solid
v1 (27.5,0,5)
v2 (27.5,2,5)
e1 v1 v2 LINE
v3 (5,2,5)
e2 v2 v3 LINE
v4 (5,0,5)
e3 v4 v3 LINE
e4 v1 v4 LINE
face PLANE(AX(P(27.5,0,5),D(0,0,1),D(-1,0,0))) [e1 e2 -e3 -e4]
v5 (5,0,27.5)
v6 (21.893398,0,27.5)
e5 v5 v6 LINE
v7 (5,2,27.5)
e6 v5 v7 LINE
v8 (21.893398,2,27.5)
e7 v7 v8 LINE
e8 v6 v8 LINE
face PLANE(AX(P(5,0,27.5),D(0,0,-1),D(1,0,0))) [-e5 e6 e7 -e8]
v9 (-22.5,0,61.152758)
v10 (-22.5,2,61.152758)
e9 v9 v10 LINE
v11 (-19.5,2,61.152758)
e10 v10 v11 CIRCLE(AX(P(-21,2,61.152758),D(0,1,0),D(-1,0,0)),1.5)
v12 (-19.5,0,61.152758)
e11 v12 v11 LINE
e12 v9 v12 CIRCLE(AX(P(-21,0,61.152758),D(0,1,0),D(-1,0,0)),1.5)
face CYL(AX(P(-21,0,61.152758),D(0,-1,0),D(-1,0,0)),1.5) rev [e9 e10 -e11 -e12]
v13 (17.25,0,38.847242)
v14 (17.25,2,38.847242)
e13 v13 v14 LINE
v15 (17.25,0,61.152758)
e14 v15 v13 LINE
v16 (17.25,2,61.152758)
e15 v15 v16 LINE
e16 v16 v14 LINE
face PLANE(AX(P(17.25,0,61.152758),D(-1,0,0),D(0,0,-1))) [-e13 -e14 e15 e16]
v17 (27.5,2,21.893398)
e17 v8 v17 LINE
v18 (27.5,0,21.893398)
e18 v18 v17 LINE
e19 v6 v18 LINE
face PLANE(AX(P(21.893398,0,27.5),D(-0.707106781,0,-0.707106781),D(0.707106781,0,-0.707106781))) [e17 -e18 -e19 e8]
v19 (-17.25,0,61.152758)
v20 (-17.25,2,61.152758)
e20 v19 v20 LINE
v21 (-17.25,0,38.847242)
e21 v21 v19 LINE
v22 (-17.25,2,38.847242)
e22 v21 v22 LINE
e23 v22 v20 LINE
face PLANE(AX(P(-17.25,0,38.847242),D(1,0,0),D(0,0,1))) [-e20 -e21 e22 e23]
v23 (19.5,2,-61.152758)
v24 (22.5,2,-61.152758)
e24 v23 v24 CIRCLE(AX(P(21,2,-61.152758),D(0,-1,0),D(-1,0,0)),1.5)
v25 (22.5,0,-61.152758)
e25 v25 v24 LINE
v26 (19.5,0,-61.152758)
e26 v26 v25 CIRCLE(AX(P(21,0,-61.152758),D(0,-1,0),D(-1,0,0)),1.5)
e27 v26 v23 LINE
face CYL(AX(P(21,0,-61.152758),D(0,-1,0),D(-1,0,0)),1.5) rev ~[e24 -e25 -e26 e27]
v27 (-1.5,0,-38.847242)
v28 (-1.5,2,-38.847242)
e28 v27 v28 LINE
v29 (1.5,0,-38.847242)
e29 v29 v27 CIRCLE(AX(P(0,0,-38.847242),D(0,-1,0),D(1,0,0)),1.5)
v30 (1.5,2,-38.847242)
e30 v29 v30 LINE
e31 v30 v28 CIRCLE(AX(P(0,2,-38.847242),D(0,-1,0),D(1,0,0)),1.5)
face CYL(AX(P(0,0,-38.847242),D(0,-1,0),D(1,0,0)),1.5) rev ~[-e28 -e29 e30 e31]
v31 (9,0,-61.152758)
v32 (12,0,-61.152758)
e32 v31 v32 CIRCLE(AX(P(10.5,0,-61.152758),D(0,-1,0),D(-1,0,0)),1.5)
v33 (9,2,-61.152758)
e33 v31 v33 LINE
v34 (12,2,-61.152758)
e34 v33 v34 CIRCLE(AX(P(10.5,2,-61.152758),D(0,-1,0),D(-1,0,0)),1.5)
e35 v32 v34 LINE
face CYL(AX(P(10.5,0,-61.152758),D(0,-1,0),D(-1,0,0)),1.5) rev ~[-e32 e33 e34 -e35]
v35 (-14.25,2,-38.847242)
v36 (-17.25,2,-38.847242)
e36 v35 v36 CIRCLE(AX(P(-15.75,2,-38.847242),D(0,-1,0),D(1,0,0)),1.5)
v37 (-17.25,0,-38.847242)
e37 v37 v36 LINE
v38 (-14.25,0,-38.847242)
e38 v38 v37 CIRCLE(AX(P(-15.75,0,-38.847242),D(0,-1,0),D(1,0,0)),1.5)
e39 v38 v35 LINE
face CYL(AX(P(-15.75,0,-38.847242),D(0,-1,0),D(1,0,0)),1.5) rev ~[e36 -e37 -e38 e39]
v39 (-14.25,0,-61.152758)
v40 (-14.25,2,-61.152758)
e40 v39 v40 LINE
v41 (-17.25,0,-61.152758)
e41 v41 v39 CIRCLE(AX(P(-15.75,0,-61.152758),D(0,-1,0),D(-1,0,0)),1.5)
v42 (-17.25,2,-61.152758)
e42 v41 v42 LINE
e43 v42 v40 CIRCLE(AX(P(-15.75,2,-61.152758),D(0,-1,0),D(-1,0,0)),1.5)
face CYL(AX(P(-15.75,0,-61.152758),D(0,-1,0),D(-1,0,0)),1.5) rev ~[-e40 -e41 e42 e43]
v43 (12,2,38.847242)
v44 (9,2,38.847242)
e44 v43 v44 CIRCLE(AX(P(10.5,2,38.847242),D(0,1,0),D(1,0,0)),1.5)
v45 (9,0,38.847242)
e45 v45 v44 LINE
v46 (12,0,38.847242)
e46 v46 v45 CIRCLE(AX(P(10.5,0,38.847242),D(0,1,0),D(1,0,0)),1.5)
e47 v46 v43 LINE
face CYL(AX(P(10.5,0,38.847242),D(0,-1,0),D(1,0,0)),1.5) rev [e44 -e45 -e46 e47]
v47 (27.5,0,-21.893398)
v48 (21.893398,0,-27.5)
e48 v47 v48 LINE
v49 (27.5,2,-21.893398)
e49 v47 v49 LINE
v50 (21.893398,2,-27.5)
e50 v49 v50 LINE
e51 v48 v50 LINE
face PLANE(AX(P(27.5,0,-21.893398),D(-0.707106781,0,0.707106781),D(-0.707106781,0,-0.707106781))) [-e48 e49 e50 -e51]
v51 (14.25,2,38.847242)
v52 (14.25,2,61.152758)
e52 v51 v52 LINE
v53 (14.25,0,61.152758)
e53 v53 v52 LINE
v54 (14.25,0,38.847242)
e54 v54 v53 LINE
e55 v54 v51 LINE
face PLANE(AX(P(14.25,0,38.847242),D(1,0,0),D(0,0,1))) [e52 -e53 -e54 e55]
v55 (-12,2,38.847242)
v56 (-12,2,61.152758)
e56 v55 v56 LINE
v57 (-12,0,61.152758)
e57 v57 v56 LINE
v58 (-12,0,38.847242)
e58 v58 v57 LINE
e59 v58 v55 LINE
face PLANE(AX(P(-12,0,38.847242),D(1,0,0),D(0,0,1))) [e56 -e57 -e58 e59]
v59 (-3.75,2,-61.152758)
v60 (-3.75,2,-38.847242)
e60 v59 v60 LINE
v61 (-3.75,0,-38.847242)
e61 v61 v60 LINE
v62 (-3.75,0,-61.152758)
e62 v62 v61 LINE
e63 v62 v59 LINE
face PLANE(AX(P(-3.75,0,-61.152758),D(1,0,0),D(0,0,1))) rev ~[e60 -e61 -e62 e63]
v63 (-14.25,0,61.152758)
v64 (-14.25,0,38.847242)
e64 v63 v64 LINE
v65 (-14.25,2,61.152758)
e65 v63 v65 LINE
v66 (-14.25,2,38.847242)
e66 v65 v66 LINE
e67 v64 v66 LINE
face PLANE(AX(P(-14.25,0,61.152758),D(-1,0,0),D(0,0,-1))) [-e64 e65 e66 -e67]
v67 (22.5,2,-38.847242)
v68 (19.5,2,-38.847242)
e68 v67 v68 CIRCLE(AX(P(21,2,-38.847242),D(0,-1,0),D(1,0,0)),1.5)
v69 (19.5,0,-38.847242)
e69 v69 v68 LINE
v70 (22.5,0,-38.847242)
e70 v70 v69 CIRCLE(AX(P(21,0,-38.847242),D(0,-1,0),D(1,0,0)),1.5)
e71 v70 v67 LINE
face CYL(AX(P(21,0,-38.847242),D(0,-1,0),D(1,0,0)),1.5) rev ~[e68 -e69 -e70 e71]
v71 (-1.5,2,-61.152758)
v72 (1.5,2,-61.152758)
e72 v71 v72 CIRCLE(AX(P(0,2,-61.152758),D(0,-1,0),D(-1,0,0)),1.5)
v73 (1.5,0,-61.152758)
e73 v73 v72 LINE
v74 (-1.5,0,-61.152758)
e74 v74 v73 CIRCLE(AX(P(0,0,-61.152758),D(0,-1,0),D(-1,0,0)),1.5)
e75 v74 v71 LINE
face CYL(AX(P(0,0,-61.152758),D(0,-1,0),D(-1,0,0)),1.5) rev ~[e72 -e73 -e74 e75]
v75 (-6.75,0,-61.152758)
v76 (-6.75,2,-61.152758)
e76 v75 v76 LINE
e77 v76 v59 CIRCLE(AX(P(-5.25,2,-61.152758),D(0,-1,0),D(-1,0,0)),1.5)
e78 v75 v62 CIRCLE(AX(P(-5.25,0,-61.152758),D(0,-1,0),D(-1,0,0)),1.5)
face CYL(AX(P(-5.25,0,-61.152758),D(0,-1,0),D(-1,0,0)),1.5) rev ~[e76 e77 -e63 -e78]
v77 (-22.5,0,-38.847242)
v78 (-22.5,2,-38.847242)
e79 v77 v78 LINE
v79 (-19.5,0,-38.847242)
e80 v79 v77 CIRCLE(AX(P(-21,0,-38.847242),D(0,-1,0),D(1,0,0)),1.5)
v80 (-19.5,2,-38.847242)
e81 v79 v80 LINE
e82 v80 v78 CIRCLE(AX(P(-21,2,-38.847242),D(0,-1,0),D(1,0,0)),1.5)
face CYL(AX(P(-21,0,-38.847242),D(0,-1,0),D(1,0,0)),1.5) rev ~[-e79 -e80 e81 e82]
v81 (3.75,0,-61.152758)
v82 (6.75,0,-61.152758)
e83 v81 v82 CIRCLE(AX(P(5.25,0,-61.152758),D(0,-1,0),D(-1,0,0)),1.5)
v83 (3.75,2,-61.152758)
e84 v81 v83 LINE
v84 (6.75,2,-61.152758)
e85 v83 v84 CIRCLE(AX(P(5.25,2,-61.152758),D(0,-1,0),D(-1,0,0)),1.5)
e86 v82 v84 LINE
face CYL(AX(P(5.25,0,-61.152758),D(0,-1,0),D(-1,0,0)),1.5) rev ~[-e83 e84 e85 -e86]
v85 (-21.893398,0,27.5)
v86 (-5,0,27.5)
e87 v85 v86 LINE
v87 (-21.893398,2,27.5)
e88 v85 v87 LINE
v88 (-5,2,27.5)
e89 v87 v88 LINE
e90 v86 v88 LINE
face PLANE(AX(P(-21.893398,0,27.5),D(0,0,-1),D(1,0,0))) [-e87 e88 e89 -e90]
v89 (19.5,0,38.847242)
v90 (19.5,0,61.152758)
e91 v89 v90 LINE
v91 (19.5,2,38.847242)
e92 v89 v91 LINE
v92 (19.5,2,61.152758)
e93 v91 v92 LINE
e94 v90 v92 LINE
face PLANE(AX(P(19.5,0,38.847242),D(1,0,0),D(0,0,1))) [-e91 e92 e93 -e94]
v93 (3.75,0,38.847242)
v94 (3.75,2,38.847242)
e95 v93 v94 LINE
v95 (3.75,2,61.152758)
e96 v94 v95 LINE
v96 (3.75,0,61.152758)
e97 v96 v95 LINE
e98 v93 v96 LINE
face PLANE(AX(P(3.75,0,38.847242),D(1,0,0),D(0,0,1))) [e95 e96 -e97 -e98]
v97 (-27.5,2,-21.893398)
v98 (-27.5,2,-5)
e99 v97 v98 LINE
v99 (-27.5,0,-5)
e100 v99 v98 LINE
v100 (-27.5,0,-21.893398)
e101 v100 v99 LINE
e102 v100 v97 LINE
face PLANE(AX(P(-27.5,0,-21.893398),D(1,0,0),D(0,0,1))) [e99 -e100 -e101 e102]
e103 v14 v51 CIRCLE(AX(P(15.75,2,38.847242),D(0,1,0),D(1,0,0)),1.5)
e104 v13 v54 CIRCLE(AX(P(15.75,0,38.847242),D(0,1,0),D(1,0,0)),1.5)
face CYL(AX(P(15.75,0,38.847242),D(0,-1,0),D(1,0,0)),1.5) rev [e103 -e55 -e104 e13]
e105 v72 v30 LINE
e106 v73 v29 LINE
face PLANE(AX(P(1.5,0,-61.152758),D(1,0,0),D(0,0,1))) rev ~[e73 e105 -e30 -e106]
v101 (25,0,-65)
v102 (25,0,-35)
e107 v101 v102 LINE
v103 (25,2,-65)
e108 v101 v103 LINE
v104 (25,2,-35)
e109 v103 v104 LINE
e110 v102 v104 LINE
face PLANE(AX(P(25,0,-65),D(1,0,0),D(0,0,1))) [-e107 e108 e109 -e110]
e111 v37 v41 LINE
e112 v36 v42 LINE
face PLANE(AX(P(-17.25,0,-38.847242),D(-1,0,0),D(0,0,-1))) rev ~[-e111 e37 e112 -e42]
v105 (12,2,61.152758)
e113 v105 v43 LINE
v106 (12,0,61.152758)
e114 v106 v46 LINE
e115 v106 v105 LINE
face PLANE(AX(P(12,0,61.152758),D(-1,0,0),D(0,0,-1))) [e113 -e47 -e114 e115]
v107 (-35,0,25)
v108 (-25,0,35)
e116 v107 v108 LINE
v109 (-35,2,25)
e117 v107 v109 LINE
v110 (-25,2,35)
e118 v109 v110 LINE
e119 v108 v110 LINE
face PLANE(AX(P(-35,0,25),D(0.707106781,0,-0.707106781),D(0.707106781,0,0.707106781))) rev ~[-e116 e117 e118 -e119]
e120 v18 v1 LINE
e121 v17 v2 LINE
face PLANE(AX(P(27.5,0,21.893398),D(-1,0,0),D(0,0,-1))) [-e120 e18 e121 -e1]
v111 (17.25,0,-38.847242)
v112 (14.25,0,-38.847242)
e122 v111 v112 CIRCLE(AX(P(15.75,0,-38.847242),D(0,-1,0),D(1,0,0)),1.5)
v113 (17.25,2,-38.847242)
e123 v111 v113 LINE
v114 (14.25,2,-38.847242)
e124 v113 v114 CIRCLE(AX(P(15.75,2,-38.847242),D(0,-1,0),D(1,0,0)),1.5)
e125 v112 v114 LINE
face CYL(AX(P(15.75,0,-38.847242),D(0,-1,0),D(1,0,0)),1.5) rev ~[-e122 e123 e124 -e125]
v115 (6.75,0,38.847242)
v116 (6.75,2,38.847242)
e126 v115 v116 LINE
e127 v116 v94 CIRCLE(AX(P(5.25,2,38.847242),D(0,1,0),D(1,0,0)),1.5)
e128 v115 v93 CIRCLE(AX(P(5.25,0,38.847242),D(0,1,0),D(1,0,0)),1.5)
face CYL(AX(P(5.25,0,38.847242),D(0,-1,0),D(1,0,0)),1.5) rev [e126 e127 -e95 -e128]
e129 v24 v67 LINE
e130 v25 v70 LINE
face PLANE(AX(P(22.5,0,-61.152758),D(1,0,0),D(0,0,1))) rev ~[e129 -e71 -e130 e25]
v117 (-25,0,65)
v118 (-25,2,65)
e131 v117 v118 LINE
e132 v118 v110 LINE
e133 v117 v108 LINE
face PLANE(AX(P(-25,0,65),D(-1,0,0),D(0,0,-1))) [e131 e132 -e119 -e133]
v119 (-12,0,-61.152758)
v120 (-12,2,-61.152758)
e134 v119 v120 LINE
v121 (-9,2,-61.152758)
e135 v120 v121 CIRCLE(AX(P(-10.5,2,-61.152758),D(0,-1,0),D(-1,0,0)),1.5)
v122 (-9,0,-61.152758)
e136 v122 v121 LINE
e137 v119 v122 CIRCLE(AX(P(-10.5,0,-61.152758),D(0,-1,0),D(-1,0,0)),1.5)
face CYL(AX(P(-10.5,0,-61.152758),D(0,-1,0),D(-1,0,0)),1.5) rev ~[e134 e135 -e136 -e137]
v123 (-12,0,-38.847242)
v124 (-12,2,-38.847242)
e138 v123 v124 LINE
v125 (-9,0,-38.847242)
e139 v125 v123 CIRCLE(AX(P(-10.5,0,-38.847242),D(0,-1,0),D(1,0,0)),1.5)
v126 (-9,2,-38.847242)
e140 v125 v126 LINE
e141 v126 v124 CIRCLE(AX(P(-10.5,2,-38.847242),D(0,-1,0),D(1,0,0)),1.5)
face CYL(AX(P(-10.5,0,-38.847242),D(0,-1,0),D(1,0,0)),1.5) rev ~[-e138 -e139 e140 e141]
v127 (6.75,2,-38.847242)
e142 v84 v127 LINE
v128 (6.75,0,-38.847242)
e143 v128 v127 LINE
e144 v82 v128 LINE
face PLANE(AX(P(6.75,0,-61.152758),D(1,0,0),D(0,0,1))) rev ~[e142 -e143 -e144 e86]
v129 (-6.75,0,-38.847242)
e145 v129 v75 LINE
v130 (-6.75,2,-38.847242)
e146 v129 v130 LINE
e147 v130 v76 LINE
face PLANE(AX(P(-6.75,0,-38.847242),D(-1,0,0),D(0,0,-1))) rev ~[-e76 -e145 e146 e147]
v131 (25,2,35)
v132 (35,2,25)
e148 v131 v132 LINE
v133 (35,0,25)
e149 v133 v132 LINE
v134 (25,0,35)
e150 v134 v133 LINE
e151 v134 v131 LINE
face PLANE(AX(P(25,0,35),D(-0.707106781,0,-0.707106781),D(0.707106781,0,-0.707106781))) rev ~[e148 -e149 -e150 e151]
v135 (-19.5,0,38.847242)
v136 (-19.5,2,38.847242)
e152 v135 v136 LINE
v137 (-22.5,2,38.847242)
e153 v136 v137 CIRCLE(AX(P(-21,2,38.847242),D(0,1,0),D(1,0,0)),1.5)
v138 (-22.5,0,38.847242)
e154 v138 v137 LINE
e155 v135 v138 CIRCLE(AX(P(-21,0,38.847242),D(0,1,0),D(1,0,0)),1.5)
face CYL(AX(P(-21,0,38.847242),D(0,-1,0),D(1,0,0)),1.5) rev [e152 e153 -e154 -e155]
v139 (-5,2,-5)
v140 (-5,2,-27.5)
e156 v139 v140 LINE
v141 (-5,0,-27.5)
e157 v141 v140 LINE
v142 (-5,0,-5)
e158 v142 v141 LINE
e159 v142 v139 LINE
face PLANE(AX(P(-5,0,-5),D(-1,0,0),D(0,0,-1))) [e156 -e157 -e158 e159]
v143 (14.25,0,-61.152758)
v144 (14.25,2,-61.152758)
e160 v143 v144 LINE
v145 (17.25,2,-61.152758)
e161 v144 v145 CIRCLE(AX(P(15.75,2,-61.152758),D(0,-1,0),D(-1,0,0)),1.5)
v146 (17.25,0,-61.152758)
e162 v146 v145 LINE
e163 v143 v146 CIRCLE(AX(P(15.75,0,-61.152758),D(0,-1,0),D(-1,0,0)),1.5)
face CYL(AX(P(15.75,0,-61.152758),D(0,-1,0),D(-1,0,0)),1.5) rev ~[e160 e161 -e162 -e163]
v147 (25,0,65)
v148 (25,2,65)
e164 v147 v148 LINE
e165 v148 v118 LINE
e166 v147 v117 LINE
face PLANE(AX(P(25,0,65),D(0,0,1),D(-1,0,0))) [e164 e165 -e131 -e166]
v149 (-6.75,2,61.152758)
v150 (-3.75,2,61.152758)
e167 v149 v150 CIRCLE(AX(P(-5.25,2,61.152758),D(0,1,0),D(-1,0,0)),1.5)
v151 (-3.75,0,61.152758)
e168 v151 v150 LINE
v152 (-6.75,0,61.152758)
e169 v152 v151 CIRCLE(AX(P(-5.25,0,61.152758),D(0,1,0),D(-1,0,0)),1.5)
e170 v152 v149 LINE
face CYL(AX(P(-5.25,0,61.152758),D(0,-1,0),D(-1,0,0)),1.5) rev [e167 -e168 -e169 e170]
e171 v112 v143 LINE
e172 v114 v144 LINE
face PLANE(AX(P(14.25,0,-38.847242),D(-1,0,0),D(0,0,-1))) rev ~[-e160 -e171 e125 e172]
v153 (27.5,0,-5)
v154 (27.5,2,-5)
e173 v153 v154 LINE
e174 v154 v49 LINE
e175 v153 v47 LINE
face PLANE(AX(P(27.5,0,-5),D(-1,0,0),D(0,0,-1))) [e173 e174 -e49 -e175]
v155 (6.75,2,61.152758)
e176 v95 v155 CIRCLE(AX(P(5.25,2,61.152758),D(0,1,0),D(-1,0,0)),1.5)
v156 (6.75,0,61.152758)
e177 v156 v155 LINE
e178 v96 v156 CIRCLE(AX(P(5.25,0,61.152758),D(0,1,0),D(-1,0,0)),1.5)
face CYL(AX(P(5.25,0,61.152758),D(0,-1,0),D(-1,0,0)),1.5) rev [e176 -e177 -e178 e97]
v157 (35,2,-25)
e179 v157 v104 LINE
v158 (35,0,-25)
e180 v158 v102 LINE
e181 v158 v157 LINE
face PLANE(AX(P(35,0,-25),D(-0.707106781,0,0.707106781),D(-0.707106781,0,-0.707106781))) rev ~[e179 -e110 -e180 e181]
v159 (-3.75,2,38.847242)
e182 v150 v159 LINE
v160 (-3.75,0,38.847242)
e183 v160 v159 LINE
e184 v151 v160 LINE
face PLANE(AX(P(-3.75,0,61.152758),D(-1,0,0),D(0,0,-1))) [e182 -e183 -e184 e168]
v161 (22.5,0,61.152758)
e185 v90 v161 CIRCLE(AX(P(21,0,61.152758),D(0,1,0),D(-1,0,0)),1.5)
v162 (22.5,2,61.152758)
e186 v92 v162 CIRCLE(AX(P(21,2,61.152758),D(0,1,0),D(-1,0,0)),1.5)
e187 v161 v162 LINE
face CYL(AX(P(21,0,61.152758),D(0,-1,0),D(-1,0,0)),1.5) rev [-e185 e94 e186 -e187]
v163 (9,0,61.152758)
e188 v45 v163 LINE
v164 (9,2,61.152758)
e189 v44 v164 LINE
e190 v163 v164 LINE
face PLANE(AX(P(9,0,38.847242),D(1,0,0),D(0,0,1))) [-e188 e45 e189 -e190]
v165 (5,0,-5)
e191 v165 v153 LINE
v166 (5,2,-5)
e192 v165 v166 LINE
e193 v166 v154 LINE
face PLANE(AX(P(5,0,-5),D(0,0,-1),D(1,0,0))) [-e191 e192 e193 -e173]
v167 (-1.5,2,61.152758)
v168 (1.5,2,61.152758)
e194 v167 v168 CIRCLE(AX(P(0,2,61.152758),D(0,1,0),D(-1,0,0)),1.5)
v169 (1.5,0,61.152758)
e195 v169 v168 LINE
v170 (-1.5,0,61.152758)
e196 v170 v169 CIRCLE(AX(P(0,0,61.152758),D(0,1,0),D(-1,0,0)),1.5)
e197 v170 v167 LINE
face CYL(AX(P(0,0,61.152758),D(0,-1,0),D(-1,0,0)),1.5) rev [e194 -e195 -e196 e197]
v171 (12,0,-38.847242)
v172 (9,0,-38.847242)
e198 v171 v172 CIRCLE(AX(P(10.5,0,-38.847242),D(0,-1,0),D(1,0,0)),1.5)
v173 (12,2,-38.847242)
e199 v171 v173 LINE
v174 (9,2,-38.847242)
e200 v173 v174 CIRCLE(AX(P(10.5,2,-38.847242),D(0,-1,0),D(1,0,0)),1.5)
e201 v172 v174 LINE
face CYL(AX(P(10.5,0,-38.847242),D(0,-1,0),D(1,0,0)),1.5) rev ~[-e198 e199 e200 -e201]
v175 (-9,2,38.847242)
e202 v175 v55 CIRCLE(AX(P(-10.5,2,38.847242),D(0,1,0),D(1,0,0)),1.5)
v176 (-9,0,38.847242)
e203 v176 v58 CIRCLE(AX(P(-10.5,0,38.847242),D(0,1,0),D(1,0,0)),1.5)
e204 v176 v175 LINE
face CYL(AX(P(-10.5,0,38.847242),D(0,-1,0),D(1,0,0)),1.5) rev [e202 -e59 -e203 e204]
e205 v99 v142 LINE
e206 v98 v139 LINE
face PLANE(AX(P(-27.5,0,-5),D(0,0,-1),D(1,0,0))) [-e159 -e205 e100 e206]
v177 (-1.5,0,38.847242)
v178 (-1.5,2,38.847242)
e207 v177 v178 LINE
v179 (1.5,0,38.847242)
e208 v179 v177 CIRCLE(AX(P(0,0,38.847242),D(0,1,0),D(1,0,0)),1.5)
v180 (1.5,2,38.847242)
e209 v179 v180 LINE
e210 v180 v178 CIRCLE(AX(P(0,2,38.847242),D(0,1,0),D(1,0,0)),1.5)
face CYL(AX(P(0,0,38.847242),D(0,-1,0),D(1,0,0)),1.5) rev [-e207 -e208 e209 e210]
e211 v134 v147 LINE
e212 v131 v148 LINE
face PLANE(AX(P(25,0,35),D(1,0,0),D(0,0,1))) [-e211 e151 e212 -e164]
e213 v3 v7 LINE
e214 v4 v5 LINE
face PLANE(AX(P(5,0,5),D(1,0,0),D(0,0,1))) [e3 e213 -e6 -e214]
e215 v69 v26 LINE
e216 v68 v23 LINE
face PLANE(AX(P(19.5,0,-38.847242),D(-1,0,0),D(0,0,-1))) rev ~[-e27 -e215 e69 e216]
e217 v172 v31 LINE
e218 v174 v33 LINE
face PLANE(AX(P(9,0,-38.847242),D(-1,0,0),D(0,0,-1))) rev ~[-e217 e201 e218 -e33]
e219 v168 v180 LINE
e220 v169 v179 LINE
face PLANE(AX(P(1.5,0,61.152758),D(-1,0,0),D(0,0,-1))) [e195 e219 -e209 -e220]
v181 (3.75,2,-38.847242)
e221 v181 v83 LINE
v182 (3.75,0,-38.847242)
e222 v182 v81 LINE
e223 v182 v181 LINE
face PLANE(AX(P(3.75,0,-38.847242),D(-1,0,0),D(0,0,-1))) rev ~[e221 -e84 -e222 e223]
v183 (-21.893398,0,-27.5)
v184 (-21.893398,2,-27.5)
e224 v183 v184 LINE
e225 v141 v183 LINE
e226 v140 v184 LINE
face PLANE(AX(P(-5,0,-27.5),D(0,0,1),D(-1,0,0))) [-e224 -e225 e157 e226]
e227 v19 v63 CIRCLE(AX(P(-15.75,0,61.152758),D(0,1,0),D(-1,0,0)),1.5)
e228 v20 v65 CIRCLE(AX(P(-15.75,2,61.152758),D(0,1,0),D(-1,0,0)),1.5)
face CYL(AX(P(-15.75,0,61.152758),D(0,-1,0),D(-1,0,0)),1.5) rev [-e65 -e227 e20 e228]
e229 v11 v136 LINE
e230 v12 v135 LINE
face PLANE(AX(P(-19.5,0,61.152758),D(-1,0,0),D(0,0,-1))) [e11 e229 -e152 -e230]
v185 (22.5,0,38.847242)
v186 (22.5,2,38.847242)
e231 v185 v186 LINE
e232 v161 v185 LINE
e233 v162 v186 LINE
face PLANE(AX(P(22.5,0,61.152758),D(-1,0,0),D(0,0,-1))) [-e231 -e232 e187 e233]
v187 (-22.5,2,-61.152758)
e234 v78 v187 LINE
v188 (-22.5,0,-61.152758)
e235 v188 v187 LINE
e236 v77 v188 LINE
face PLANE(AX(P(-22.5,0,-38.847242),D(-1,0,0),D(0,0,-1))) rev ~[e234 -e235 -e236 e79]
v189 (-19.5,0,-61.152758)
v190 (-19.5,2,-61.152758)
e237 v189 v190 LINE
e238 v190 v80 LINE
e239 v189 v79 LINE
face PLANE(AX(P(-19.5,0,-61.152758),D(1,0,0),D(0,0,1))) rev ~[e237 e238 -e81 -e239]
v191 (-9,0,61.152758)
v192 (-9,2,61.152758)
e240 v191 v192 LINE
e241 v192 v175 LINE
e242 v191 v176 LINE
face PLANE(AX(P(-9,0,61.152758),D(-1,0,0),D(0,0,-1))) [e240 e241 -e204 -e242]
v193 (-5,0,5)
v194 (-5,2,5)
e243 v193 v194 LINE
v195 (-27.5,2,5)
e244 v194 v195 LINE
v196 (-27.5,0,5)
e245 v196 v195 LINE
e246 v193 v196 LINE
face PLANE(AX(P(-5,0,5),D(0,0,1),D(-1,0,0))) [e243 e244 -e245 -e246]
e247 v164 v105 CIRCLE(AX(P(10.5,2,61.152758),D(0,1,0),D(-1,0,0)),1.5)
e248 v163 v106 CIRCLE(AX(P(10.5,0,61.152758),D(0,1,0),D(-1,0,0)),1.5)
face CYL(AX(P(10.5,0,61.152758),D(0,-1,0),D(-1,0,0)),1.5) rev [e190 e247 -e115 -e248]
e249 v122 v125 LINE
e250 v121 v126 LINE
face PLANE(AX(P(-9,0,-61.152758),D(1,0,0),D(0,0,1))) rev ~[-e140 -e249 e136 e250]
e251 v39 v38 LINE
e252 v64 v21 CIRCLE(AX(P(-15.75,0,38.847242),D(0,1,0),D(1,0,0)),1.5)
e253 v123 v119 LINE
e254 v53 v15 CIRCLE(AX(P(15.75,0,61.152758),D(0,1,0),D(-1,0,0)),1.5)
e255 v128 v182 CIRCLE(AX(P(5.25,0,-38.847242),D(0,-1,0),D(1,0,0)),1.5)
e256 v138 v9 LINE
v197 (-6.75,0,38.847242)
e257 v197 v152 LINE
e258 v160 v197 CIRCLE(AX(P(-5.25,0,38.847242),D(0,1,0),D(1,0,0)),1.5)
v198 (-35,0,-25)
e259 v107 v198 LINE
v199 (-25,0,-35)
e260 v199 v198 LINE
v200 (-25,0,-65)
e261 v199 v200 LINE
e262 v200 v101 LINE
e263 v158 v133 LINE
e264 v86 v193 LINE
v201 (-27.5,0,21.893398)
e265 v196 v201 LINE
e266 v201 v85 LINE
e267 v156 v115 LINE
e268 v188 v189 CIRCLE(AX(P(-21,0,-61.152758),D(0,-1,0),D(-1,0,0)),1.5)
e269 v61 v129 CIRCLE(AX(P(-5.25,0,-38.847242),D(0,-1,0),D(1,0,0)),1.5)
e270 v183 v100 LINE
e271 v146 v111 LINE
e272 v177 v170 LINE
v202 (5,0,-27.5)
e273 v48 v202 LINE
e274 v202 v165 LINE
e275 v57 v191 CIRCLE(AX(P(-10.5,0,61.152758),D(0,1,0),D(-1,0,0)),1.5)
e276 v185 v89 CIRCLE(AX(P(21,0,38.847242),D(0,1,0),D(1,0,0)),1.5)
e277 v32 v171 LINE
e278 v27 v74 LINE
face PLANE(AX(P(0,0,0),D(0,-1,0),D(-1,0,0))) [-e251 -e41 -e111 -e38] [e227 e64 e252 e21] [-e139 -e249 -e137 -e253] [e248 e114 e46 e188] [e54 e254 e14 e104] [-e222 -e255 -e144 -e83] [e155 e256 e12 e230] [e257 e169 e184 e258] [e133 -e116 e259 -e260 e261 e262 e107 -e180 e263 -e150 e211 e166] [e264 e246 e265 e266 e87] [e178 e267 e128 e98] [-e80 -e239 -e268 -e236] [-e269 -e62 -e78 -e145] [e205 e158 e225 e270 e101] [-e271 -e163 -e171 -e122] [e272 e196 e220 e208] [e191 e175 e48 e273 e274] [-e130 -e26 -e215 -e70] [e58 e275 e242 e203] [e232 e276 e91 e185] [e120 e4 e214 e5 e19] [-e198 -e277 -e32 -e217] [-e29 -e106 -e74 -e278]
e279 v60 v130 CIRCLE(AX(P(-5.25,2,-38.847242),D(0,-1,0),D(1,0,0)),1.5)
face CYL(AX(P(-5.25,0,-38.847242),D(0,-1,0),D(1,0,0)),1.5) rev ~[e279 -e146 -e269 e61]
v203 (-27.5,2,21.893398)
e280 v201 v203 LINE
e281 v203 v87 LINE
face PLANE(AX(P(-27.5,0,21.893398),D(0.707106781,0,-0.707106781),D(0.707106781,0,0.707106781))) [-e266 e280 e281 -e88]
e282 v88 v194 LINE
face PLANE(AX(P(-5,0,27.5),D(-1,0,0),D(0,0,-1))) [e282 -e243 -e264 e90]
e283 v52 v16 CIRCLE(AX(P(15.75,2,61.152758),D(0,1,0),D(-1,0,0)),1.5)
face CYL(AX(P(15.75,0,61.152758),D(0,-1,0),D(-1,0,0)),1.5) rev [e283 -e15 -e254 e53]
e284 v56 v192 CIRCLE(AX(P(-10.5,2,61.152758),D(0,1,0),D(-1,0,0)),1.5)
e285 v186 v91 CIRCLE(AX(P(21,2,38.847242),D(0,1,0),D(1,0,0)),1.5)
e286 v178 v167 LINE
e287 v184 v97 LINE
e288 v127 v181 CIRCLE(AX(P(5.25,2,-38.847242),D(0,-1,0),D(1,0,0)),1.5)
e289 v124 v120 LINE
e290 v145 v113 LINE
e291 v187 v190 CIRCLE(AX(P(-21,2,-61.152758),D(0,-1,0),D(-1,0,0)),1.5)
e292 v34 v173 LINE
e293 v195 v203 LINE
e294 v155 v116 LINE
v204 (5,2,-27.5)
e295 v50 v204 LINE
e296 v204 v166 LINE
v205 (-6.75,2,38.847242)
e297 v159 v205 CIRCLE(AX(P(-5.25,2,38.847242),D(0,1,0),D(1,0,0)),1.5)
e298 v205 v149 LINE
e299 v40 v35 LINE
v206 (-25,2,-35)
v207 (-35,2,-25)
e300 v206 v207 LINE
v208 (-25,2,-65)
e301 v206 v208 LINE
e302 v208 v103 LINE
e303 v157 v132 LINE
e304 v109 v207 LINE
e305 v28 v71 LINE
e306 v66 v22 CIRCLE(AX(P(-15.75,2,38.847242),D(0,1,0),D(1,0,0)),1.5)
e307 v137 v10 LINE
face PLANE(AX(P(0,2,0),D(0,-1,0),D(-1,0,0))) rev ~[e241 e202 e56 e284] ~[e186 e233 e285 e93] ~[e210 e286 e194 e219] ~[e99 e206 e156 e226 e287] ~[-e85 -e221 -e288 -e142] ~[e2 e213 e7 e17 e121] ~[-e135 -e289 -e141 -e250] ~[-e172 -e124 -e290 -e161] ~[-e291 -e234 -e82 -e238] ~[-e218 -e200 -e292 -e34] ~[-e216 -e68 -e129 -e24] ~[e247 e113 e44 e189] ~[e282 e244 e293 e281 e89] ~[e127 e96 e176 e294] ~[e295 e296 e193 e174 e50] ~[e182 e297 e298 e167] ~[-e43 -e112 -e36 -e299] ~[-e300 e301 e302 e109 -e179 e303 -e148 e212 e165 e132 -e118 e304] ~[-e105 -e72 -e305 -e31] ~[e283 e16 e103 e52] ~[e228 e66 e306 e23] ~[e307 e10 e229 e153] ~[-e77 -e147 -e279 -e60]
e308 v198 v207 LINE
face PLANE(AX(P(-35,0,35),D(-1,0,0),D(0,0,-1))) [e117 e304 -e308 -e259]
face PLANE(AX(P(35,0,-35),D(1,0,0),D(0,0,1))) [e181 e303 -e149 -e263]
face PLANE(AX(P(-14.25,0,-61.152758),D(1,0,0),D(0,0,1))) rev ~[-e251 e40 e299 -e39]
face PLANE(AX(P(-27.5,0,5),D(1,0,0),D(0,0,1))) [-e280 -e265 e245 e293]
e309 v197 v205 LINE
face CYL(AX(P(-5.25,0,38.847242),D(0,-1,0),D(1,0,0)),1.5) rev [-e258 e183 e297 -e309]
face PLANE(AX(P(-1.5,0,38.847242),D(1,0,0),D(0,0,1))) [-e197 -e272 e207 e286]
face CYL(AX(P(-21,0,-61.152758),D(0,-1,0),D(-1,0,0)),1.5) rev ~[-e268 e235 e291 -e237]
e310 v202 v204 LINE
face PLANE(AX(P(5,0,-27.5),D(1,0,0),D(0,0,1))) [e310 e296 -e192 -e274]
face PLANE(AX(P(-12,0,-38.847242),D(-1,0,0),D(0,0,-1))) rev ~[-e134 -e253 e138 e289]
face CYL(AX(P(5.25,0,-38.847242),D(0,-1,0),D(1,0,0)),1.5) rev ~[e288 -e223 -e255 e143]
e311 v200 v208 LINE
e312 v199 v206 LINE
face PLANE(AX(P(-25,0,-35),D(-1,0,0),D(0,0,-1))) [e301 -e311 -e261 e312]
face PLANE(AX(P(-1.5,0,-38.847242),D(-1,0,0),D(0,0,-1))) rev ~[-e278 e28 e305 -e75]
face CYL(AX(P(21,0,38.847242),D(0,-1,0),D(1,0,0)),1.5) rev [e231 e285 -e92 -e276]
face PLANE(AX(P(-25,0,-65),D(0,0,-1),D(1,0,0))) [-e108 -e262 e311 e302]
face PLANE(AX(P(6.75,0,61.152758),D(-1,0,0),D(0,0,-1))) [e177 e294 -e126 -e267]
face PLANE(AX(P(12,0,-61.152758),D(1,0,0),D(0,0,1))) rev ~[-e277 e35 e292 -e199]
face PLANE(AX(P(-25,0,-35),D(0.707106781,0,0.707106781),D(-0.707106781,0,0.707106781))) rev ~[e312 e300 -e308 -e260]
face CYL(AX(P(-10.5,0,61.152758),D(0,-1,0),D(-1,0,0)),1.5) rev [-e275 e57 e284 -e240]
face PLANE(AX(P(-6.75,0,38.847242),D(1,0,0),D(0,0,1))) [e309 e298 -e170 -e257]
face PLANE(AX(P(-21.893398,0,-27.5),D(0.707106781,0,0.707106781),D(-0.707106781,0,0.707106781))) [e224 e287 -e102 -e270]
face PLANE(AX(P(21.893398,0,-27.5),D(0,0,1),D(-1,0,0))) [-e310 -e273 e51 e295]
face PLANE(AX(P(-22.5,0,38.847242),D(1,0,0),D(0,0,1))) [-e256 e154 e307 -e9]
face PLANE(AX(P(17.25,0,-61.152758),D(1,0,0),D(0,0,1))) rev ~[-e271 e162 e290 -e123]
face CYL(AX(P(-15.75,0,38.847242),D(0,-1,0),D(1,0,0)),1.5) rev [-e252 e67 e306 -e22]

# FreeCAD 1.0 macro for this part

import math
import FreeCAD as App
import Part
import Sketcher
from FreeCAD import Vector


def add_polygon(sketch, points):
    """Adds a closed chain of lines whose ends are joined by coincident constraints."""
    first, n = sketch.GeometryCount, len(points)
    for a, b in zip(points, points[1:] + points[:1]):
        sketch.addGeometry(Part.LineSegment(App.Vector(*a, 0), App.Vector(*b, 0)), False)
    for i in range(n):
        sketch.addConstraint(Sketcher.Constraint("Coincident", first + i, 2, first + (i + 1) % n, 1))

doc = App.newDocument("Part")
body = doc.addObject("PartDesign::Body", "Body")

# Sketch on XZ plane
sketch1 = doc.addObject("Sketcher::SketchObject", "Sketch")
body.addObject(sketch1)
sketch1.AttachmentSupport = (doc.XZ_Plane, [""])
sketch1.MapMode = "FlatFace"
add_polygon(sketch1, [(-25, -35), (-35, -35), (-35, 35), (-25, 35), (-25, 65), (25, 65), (25, 35), (35, 35), (35, -35), (25, -35), (25, -65), (-25, -65)])  # lines 0-11
sketch1.addGeometry(Part.ArcOfCircle(Part.Circle(Vector(21, 38.8, 0), Vector(0, 0, 1), 1.5), math.radians(180), math.radians(360)), False)  # 12
sketch1.addGeometry(Part.LineSegment(Vector(22.5, 38.8, 0), Vector(22.5, 61.2, 0)), False)  # 13
sketch1.addGeometry(Part.ArcOfCircle(Part.Circle(Vector(21, 61.2, 0), Vector(0, 0, 1), 1.5), math.radians(0), math.radians(180)), False)  # 14
sketch1.addGeometry(Part.LineSegment(Vector(19.5, 61.2, 0), Vector(19.5, 38.8, 0)), False)  # 15
sketch1.addGeometry(Part.ArcOfCircle(Part.Circle(Vector(15.8, 38.8, 0), Vector(0, 0, 1), 1.5), math.radians(180), math.radians(360)), False)  # 16
sketch1.addGeometry(Part.LineSegment(Vector(17.2, 38.8, 0), Vector(17.2, 61.2, 0)), False)  # 17
sketch1.addGeometry(Part.ArcOfCircle(Part.Circle(Vector(15.8, 61.2, 0), Vector(0, 0, 1), 1.5), math.radians(0), math.radians(180)), False)  # 18
sketch1.addGeometry(Part.LineSegment(Vector(14.2, 61.2, 0), Vector(14.2, 38.8, 0)), False)  # 19
sketch1.addGeometry(Part.ArcOfCircle(Part.Circle(Vector(10.5, 38.8, 0), Vector(0, 0, 1), 1.5), math.radians(180), math.radians(360)), False)  # 20
sketch1.addGeometry(Part.LineSegment(Vector(12, 38.8, 0), Vector(12, 61.2, 0)), False)  # 21
sketch1.addGeometry(Part.ArcOfCircle(Part.Circle(Vector(10.5, 61.2, 0), Vector(0, 0, 1), 1.5), math.radians(0), math.radians(180)), False)  # 22
sketch1.addGeometry(Part.LineSegment(Vector(9, 61.2, 0), Vector(9, 38.8, 0)), False)  # 23
sketch1.addGeometry(Part.ArcOfCircle(Part.Circle(Vector(5.2, 38.8, 0), Vector(0, 0, 1), 1.5), math.radians(180), math.radians(360)), False)  # 24
sketch1.addGeometry(Part.LineSegment(Vector(6.8, 38.8, 0), Vector(6.8, 61.2, 0)), False)  # 25
sketch1.addGeometry(Part.ArcOfCircle(Part.Circle(Vector(5.2, 61.2, 0), Vector(0, 0, 1), 1.5), math.radians(0), math.radians(180)), False)  # 26
sketch1.addGeometry(Part.LineSegment(Vector(3.8, 61.2, 0), Vector(3.8, 38.8, 0)), False)  # 27
sketch1.addGeometry(Part.ArcOfCircle(Part.Circle(Vector(0, 38.8, 0), Vector(0, 0, 1), 1.5), math.radians(180), math.radians(360)), False)  # 28
sketch1.addGeometry(Part.LineSegment(Vector(1.5, 38.8, 0), Vector(1.5, 61.2, 0)), False)  # 29
sketch1.addGeometry(Part.ArcOfCircle(Part.Circle(Vector(0, 61.2, 0), Vector(0, 0, 1), 1.5), math.radians(0), math.radians(180)), False)  # 30
sketch1.addGeometry(Part.LineSegment(Vector(-1.5, 61.2, 0), Vector(-1.5, 38.8, 0)), False)  # 31
sketch1.addGeometry(Part.ArcOfCircle(Part.Circle(Vector(-5.2, 38.8, 0), Vector(0, 0, 1), 1.5), math.radians(180), math.radians(360)), False)  # 32
sketch1.addGeometry(Part.LineSegment(Vector(-3.8, 38.8, 0), Vector(-3.8, 61.2, 0)), False)  # 33
sketch1.addGeometry(Part.ArcOfCircle(Part.Circle(Vector(-5.2, 61.2, 0), Vector(0, 0, 1), 1.5), math.radians(0), math.radians(180)), False)  # 34
sketch1.addGeometry(Part.LineSegment(Vector(-6.8, 61.2, 0), Vector(-6.8, 38.8, 0)), False)  # 35
sketch1.addGeometry(Part.ArcOfCircle(Part.Circle(Vector(-10.5, 38.8, 0), Vector(0, 0, 1), 1.5), math.radians(180), math.radians(360)), False)  # 36
sketch1.addGeometry(Part.LineSegment(Vector(-9, 38.8, 0), Vector(-9, 61.2, 0)), False)  # 37
sketch1.addGeometry(Part.ArcOfCircle(Part.Circle(Vector(-10.5, 61.2, 0), Vector(0, 0, 1), 1.5), math.radians(0), math.radians(180)), False)  # 38
sketch1.addGeometry(Part.LineSegment(Vector(-12, 61.2, 0), Vector(-12, 38.8, 0)), False)  # 39
sketch1.addGeometry(Part.ArcOfCircle(Part.Circle(Vector(-15.8, 38.8, 0), Vector(0, 0, 1), 1.5), math.radians(180), math.radians(360)), False)  # 40
sketch1.addGeometry(Part.LineSegment(Vector(-14.2, 38.8, 0), Vector(-14.2, 61.2, 0)), False)  # 41
sketch1.addGeometry(Part.ArcOfCircle(Part.Circle(Vector(-15.8, 61.2, 0), Vector(0, 0, 1), 1.5), math.radians(0), math.radians(180)), False)  # 42
sketch1.addGeometry(Part.LineSegment(Vector(-17.2, 61.2, 0), Vector(-17.2, 38.8, 0)), False)  # 43
sketch1.addGeometry(Part.ArcOfCircle(Part.Circle(Vector(-21, 38.8, 0), Vector(0, 0, 1), 1.5), math.radians(180), math.radians(360)), False)  # 44
sketch1.addGeometry(Part.LineSegment(Vector(-19.5, 38.8, 0), Vector(-19.5, 61.2, 0)), False)  # 45
sketch1.addGeometry(Part.ArcOfCircle(Part.Circle(Vector(-21, 61.2, 0), Vector(0, 0, 1), 1.5), math.radians(0), math.radians(180)), False)  # 46
sketch1.addGeometry(Part.LineSegment(Vector(-22.5, 61.2, 0), Vector(-22.5, 38.8, 0)), False)  # 47
sketch1.addGeometry(Part.LineSegment(Vector(19.5, -38.8, 0), Vector(19.5, -61.2, 0)), False)  # 48
sketch1.addGeometry(Part.ArcOfCircle(Part.Circle(Vector(21, -61.2, 0), Vector(0, 0, 1), 1.5), math.radians(180), math.radians(360)), False)  # 49
sketch1.addGeometry(Part.LineSegment(Vector(22.5, -61.2, 0), Vector(22.5, -38.8, 0)), False)  # 50
sketch1.addGeometry(Part.ArcOfCircle(Part.Circle(Vector(21, -38.8, 0), Vector(0, 0, 1), 1.5), math.radians(0), math.radians(180)), False)  # 51
sketch1.addGeometry(Part.LineSegment(Vector(14.2, -38.8, 0), Vector(14.2, -61.2, 0)), False)  # 52
sketch1.addGeometry(Part.ArcOfCircle(Part.Circle(Vector(15.8, -61.2, 0), Vector(0, 0, 1), 1.5), math.radians(180), math.radians(360)), False)  # 53
sketch1.addGeometry(Part.LineSegment(Vector(17.2, -61.2, 0), Vector(17.2, -38.8, 0)), False)  # 54
sketch1.addGeometry(Part.ArcOfCircle(Part.Circle(Vector(15.8, -38.8, 0), Vector(0, 0, 1), 1.5), math.radians(0), math.radians(180)), False)  # 55
sketch1.addGeometry(Part.LineSegment(Vector(9, -38.8, 0), Vector(9, -61.2, 0)), False)  # 56
sketch1.addGeometry(Part.ArcOfCircle(Part.Circle(Vector(10.5, -61.2, 0), Vector(0, 0, 1), 1.5), math.radians(180), math.radians(360)), False)  # 57
sketch1.addGeometry(Part.LineSegment(Vector(12, -61.2, 0), Vector(12, -38.8, 0)), False)  # 58
sketch1.addGeometry(Part.ArcOfCircle(Part.Circle(Vector(10.5, -38.8, 0), Vector(0, 0, 1), 1.5), math.radians(0), math.radians(180)), False)  # 59
sketch1.addGeometry(Part.LineSegment(Vector(3.8, -38.8, 0), Vector(3.8, -61.2, 0)), False)  # 60
sketch1.addGeometry(Part.ArcOfCircle(Part.Circle(Vector(5.2, -61.2, 0), Vector(0, 0, 1), 1.5), math.radians(180), math.radians(360)), False)  # 61
sketch1.addGeometry(Part.LineSegment(Vector(6.8, -61.2, 0), Vector(6.8, -38.8, 0)), False)  # 62
sketch1.addGeometry(Part.ArcOfCircle(Part.Circle(Vector(5.2, -38.8, 0), Vector(0, 0, 1), 1.5), math.radians(0), math.radians(180)), False)  # 63
sketch1.addGeometry(Part.LineSegment(Vector(-1.5, -38.8, 0), Vector(-1.5, -61.2, 0)), False)  # 64
sketch1.addGeometry(Part.ArcOfCircle(Part.Circle(Vector(0, -61.2, 0), Vector(0, 0, 1), 1.5), math.radians(180), math.radians(360)), False)  # 65
sketch1.addGeometry(Part.LineSegment(Vector(1.5, -61.2, 0), Vector(1.5, -38.8, 0)), False)  # 66
sketch1.addGeometry(Part.ArcOfCircle(Part.Circle(Vector(0, -38.8, 0), Vector(0, 0, 1), 1.5), math.radians(0), math.radians(180)), False)  # 67
sketch1.addGeometry(Part.LineSegment(Vector(-6.8, -38.8, 0), Vector(-6.8, -61.2, 0)), False)  # 68
sketch1.addGeometry(Part.ArcOfCircle(Part.Circle(Vector(-5.2, -61.2, 0), Vector(0, 0, 1), 1.5), math.radians(180), math.radians(360)), False)  # 69
sketch1.addGeometry(Part.LineSegment(Vector(-3.8, -61.2, 0), Vector(-3.8, -38.8, 0)), False)  # 70
sketch1.addGeometry(Part.ArcOfCircle(Part.Circle(Vector(-5.2, -38.8, 0), Vector(0, 0, 1), 1.5), math.radians(0), math.radians(180)), False)  # 71
sketch1.addGeometry(Part.LineSegment(Vector(-12, -38.8, 0), Vector(-12, -61.2, 0)), False)  # 72
sketch1.addGeometry(Part.ArcOfCircle(Part.Circle(Vector(-10.5, -61.2, 0), Vector(0, 0, 1), 1.5), math.radians(180), math.radians(360)), False)  # 73
sketch1.addGeometry(Part.LineSegment(Vector(-9, -61.2, 0), Vector(-9, -38.8, 0)), False)  # 74
sketch1.addGeometry(Part.ArcOfCircle(Part.Circle(Vector(-10.5, -38.8, 0), Vector(0, 0, 1), 1.5), math.radians(0), math.radians(180)), False)  # 75
sketch1.addGeometry(Part.LineSegment(Vector(-17.2, -38.8, 0), Vector(-17.2, -61.2, 0)), False)  # 76
sketch1.addGeometry(Part.ArcOfCircle(Part.Circle(Vector(-15.8, -61.2, 0), Vector(0, 0, 1), 1.5), math.radians(180), math.radians(360)), False)  # 77
sketch1.addGeometry(Part.LineSegment(Vector(-14.2, -61.2, 0), Vector(-14.2, -38.8, 0)), False)  # 78
sketch1.addGeometry(Part.ArcOfCircle(Part.Circle(Vector(-15.8, -38.8, 0), Vector(0, 0, 1), 1.5), math.radians(0), math.radians(180)), False)  # 79
sketch1.addGeometry(Part.LineSegment(Vector(-22.5, -38.8, 0), Vector(-22.5, -61.2, 0)), False)  # 80
sketch1.addGeometry(Part.ArcOfCircle(Part.Circle(Vector(-21, -61.2, 0), Vector(0, 0, 1), 1.5), math.radians(180), math.radians(360)), False)  # 81
sketch1.addGeometry(Part.LineSegment(Vector(-19.5, -61.2, 0), Vector(-19.5, -38.8, 0)), False)  # 82
sketch1.addGeometry(Part.ArcOfCircle(Part.Circle(Vector(-21, -38.8, 0), Vector(0, 0, 1), 1.5), math.radians(0), math.radians(180)), False)  # 83
sketch1.addConstraint(Sketcher.Constraint("Tangent", 12, 2, 13, 1))
sketch1.addConstraint(Sketcher.Constraint("Tangent", 13, 2, 14, 1))
sketch1.addConstraint(Sketcher.Constraint("Tangent", 14, 2, 15, 1))
sketch1.addConstraint(Sketcher.Constraint("Tangent", 15, 2, 12, 1))
sketch1.addConstraint(Sketcher.Constraint("Tangent", 16, 2, 17, 1))
sketch1.addConstraint(Sketcher.Constraint("Tangent", 17, 2, 18, 1))
sketch1.addConstraint(Sketcher.Constraint("Tangent", 18, 2, 19, 1))
sketch1.addConstraint(Sketcher.Constraint("Tangent", 19, 2, 16, 1))
sketch1.addConstraint(Sketcher.Constraint("Tangent", 20, 2, 21, 1))
sketch1.addConstraint(Sketcher.Constraint("Tangent", 21, 2, 22, 1))
sketch1.addConstraint(Sketcher.Constraint("Tangent", 22, 2, 23, 1))
sketch1.addConstraint(Sketcher.Constraint("Tangent", 23, 2, 20, 1))
sketch1.addConstraint(Sketcher.Constraint("Tangent", 24, 2, 25, 1))
sketch1.addConstraint(Sketcher.Constraint("Tangent", 25, 2, 26, 1))
sketch1.addConstraint(Sketcher.Constraint("Tangent", 26, 2, 27, 1))
sketch1.addConstraint(Sketcher.Constraint("Tangent", 27, 2, 24, 1))
sketch1.addConstraint(Sketcher.Constraint("Tangent", 28, 2, 29, 1))
sketch1.addConstraint(Sketcher.Constraint("Tangent", 29, 2, 30, 1))
sketch1.addConstraint(Sketcher.Constraint("Tangent", 30, 2, 31, 1))
sketch1.addConstraint(Sketcher.Constraint("Tangent", 31, 2, 28, 1))
sketch1.addConstraint(Sketcher.Constraint("Tangent", 32, 2, 33, 1))
sketch1.addConstraint(Sketcher.Constraint("Tangent", 33, 2, 34, 1))
sketch1.addConstraint(Sketcher.Constraint("Tangent", 34, 2, 35, 1))
sketch1.addConstraint(Sketcher.Constraint("Tangent", 35, 2, 32, 1))
sketch1.addConstraint(Sketcher.Constraint("Tangent", 36, 2, 37, 1))
sketch1.addConstraint(Sketcher.Constraint("Tangent", 37, 2, 38, 1))
sketch1.addConstraint(Sketcher.Constraint("Tangent", 38, 2, 39, 1))
sketch1.addConstraint(Sketcher.Constraint("Tangent", 39, 2, 36, 1))
sketch1.addConstraint(Sketcher.Constraint("Tangent", 40, 2, 41, 1))
sketch1.addConstraint(Sketcher.Constraint("Tangent", 41, 2, 42, 1))
sketch1.addConstraint(Sketcher.Constraint("Tangent", 42, 2, 43, 1))
sketch1.addConstraint(Sketcher.Constraint("Tangent", 43, 2, 40, 1))
sketch1.addConstraint(Sketcher.Constraint("Tangent", 44, 2, 45, 1))
sketch1.addConstraint(Sketcher.Constraint("Tangent", 45, 2, 46, 1))
sketch1.addConstraint(Sketcher.Constraint("Tangent", 46, 2, 47, 1))
sketch1.addConstraint(Sketcher.Constraint("Tangent", 47, 2, 44, 1))
sketch1.addConstraint(Sketcher.Constraint("Tangent", 48, 2, 49, 1))
sketch1.addConstraint(Sketcher.Constraint("Tangent", 49, 2, 50, 1))
sketch1.addConstraint(Sketcher.Constraint("Tangent", 50, 2, 51, 1))
sketch1.addConstraint(Sketcher.Constraint("Tangent", 51, 2, 48, 1))
sketch1.addConstraint(Sketcher.Constraint("Tangent", 52, 2, 53, 1))
sketch1.addConstraint(Sketcher.Constraint("Tangent", 53, 2, 54, 1))
sketch1.addConstraint(Sketcher.Constraint("Tangent", 54, 2, 55, 1))
sketch1.addConstraint(Sketcher.Constraint("Tangent", 55, 2, 52, 1))
sketch1.addConstraint(Sketcher.Constraint("Tangent", 56, 2, 57, 1))
sketch1.addConstraint(Sketcher.Constraint("Tangent", 57, 2, 58, 1))
sketch1.addConstraint(Sketcher.Constraint("Tangent", 58, 2, 59, 1))
sketch1.addConstraint(Sketcher.Constraint("Tangent", 59, 2, 56, 1))
sketch1.addConstraint(Sketcher.Constraint("Tangent", 60, 2, 61, 1))
sketch1.addConstraint(Sketcher.Constraint("Tangent", 61, 2, 62, 1))
sketch1.addConstraint(Sketcher.Constraint("Tangent", 62, 2, 63, 1))
sketch1.addConstraint(Sketcher.Constraint("Tangent", 63, 2, 60, 1))
sketch1.addConstraint(Sketcher.Constraint("Tangent", 64, 2, 65, 1))
sketch1.addConstraint(Sketcher.Constraint("Tangent", 65, 2, 66, 1))
sketch1.addConstraint(Sketcher.Constraint("Tangent", 66, 2, 67, 1))
sketch1.addConstraint(Sketcher.Constraint("Tangent", 67, 2, 64, 1))
sketch1.addConstraint(Sketcher.Constraint("Tangent", 68, 2, 69, 1))
sketch1.addConstraint(Sketcher.Constraint("Tangent", 69, 2, 70, 1))
sketch1.addConstraint(Sketcher.Constraint("Tangent", 70, 2, 71, 1))
sketch1.addConstraint(Sketcher.Constraint("Tangent", 71, 2, 68, 1))
sketch1.addConstraint(Sketcher.Constraint("Tangent", 72, 2, 73, 1))
sketch1.addConstraint(Sketcher.Constraint("Tangent", 73, 2, 74, 1))
sketch1.addConstraint(Sketcher.Constraint("Tangent", 74, 2, 75, 1))
sketch1.addConstraint(Sketcher.Constraint("Tangent", 75, 2, 72, 1))
sketch1.addConstraint(Sketcher.Constraint("Tangent", 76, 2, 77, 1))
sketch1.addConstraint(Sketcher.Constraint("Tangent", 77, 2, 78, 1))
sketch1.addConstraint(Sketcher.Constraint("Tangent", 78, 2, 79, 1))
sketch1.addConstraint(Sketcher.Constraint("Tangent", 79, 2, 76, 1))
sketch1.addConstraint(Sketcher.Constraint("Tangent", 80, 2, 81, 1))
sketch1.addConstraint(Sketcher.Constraint("Tangent", 81, 2, 82, 1))
sketch1.addConstraint(Sketcher.Constraint("Tangent", 82, 2, 83, 1))
sketch1.addConstraint(Sketcher.Constraint("Tangent", 83, 2, 80, 1))
sketch1.addConstraint(Sketcher.Constraint("Horizontal", 0))
sketch1.addConstraint(Sketcher.Constraint("Vertical", 1))
sketch1.addConstraint(Sketcher.Constraint("Horizontal", 2))
sketch1.addConstraint(Sketcher.Constraint("Vertical", 3))
sketch1.addConstraint(Sketcher.Constraint("Horizontal", 4))
sketch1.addConstraint(Sketcher.Constraint("Vertical", 5))
sketch1.addConstraint(Sketcher.Constraint("Horizontal", 6))
sketch1.addConstraint(Sketcher.Constraint("Vertical", 7))
sketch1.addConstraint(Sketcher.Constraint("Horizontal", 8))
sketch1.addConstraint(Sketcher.Constraint("Vertical", 9))
sketch1.addConstraint(Sketcher.Constraint("Horizontal", 10))
sketch1.addConstraint(Sketcher.Constraint("Vertical", 11))
sketch1.addConstraint(Sketcher.Constraint("Vertical", 13))
sketch1.addConstraint(Sketcher.Constraint("Vertical", 15))
sketch1.addConstraint(Sketcher.Constraint("Vertical", 17))
sketch1.addConstraint(Sketcher.Constraint("Vertical", 19))
sketch1.addConstraint(Sketcher.Constraint("Vertical", 21))
sketch1.addConstraint(Sketcher.Constraint("Vertical", 23))
sketch1.addConstraint(Sketcher.Constraint("Vertical", 25))
sketch1.addConstraint(Sketcher.Constraint("Vertical", 27))
sketch1.addConstraint(Sketcher.Constraint("Vertical", 29))
sketch1.addConstraint(Sketcher.Constraint("Vertical", 31))
sketch1.addConstraint(Sketcher.Constraint("Vertical", 33))
sketch1.addConstraint(Sketcher.Constraint("Vertical", 35))
sketch1.addConstraint(Sketcher.Constraint("Vertical", 37))
sketch1.addConstraint(Sketcher.Constraint("Vertical", 39))
sketch1.addConstraint(Sketcher.Constraint("Vertical", 41))
sketch1.addConstraint(Sketcher.Constraint("Vertical", 43))
sketch1.addConstraint(Sketcher.Constraint("Vertical", 45))
sketch1.addConstraint(Sketcher.Constraint("Vertical", 47))
sketch1.addConstraint(Sketcher.Constraint("Vertical", 48))
sketch1.addConstraint(Sketcher.Constraint("Vertical", 50))
sketch1.addConstraint(Sketcher.Constraint("Vertical", 52))
sketch1.addConstraint(Sketcher.Constraint("Vertical", 54))
sketch1.addConstraint(Sketcher.Constraint("Vertical", 56))
sketch1.addConstraint(Sketcher.Constraint("Vertical", 58))
sketch1.addConstraint(Sketcher.Constraint("Vertical", 60))
sketch1.addConstraint(Sketcher.Constraint("Vertical", 62))
sketch1.addConstraint(Sketcher.Constraint("Vertical", 64))
sketch1.addConstraint(Sketcher.Constraint("Vertical", 66))
sketch1.addConstraint(Sketcher.Constraint("Vertical", 68))
sketch1.addConstraint(Sketcher.Constraint("Vertical", 70))
sketch1.addConstraint(Sketcher.Constraint("Vertical", 72))
sketch1.addConstraint(Sketcher.Constraint("Vertical", 74))
sketch1.addConstraint(Sketcher.Constraint("Vertical", 76))
sketch1.addConstraint(Sketcher.Constraint("Vertical", 78))
sketch1.addConstraint(Sketcher.Constraint("Vertical", 80))
sketch1.addConstraint(Sketcher.Constraint("Vertical", 82))
sketch1.addConstraint(Sketcher.Constraint("Equal", 14, 16))
sketch1.addConstraint(Sketcher.Constraint("Equal", 18, 20))
sketch1.addConstraint(Sketcher.Constraint("Equal", 22, 24))
sketch1.addConstraint(Sketcher.Constraint("Equal", 26, 28))
sketch1.addConstraint(Sketcher.Constraint("Equal", 30, 32))
sketch1.addConstraint(Sketcher.Constraint("Equal", 34, 36))
sketch1.addConstraint(Sketcher.Constraint("Equal", 38, 40))
sketch1.addConstraint(Sketcher.Constraint("Equal", 42, 44))
sketch1.addConstraint(Sketcher.Constraint("Equal", 46, 49))
sketch1.addConstraint(Sketcher.Constraint("Equal", 51, 53))
sketch1.addConstraint(Sketcher.Constraint("Equal", 55, 57))
sketch1.addConstraint(Sketcher.Constraint("Equal", 59, 61))
sketch1.addConstraint(Sketcher.Constraint("Equal", 63, 65))
sketch1.addConstraint(Sketcher.Constraint("Equal", 67, 69))
sketch1.addConstraint(Sketcher.Constraint("Equal", 71, 73))
sketch1.addConstraint(Sketcher.Constraint("Equal", 75, 77))
sketch1.addConstraint(Sketcher.Constraint("Equal", 79, 81))
sketch1.addConstraint(Sketcher.Constraint("Symmetric", 46, 3, 49, 3, -1, 1))
sketch1.addConstraint(Sketcher.Constraint("Symmetric", 42, 3, 53, 3, -1, 1))
sketch1.addConstraint(Sketcher.Constraint("Symmetric", 38, 3, 57, 3, -1, 1))
sketch1.addConstraint(Sketcher.Constraint("Symmetric", 34, 3, 61, 3, -1, 1))
sketch1.addConstraint(Sketcher.Constraint("Symmetric", 30, 3, 65, 3, -1, 1))
sketch1.addConstraint(Sketcher.Constraint("Symmetric", 26, 3, 69, 3, -1, 1))
sketch1.addConstraint(Sketcher.Constraint("Symmetric", 22, 3, 73, 3, -1, 1))
sketch1.addConstraint(Sketcher.Constraint("Symmetric", 18, 3, 77, 3, -1, 1))
sketch1.addConstraint(Sketcher.Constraint("Symmetric", 14, 3, 81, 3, -1, 1))
sketch1.addConstraint(Sketcher.Constraint("Symmetric", 0, 2, 6, 2, -1, 1))
sketch1.addConstraint(Sketcher.Constraint("Symmetric", 2, 2, 8, 2, -1, 1))
sketch1.addConstraint(Sketcher.Constraint("Symmetric", 4, 2, 10, 2, -1, 1))
sketch1.addConstraint(Sketcher.Constraint("Symmetric", 24, 3, 32, 3, -2))
sketch1.addConstraint(Sketcher.Constraint("Symmetric", 20, 3, 36, 3, -2))
sketch1.addConstraint(Sketcher.Constraint("Symmetric", 16, 3, 40, 3, -2))
sketch1.addConstraint(Sketcher.Constraint("Symmetric", 12, 3, 44, 3, -2))
sketch1.addConstraint(Sketcher.Constraint("Symmetric", 2, 2, 5, 2, -2))
sketch1.addConstraint(Sketcher.Constraint("Symmetric", 28, 3, 67, 3, -1))
sketch1.addConstraint(Sketcher.Constraint("Horizontal", 12, 3, 16, 3))
sketch1.addConstraint(Sketcher.Constraint("Horizontal", 14, 3, 18, 3))
sketch1.addConstraint(Sketcher.Constraint("Horizontal", 16, 3, 20, 3))
sketch1.addConstraint(Sketcher.Constraint("Horizontal", 18, 3, 22, 3))
sketch1.addConstraint(Sketcher.Constraint("Horizontal", 20, 3, 24, 3))
sketch1.addConstraint(Sketcher.Constraint("Horizontal", 22, 3, 26, 3))
sketch1.addConstraint(Sketcher.Constraint("Horizontal", 24, 3, 28, 3))
sketch1.addConstraint(Sketcher.Constraint("Horizontal", 26, 3, 30, 3))
sketch1.addConstraint(Sketcher.Constraint("Horizontal", 30, 3, 34, 3))
sketch1.addConstraint(Sketcher.Constraint("Horizontal", 34, 3, 38, 3))
sketch1.addConstraint(Sketcher.Constraint("Horizontal", 38, 3, 42, 3))
sketch1.addConstraint(Sketcher.Constraint("Horizontal", 42, 3, 46, 3))
sketch1.addConstraint(Sketcher.Constraint("Horizontal", 51, 3, 55, 3))
sketch1.addConstraint(Sketcher.Constraint("Horizontal", 55, 3, 59, 3))
sketch1.addConstraint(Sketcher.Constraint("Horizontal", 59, 3, 63, 3))
sketch1.addConstraint(Sketcher.Constraint("Horizontal", 63, 3, 67, 3))
sketch1.addConstraint(Sketcher.Constraint("Horizontal", 67, 3, 71, 3))
sketch1.addConstraint(Sketcher.Constraint("Horizontal", 71, 3, 75, 3))
sketch1.addConstraint(Sketcher.Constraint("Horizontal", 75, 3, 79, 3))
sketch1.addConstraint(Sketcher.Constraint("Horizontal", 79, 3, 83, 3))
sketch1.addConstraint(Sketcher.Constraint("Radius", 12, 1.5))
sketch1.addConstraint(Sketcher.Constraint("DistanceX", 0, 2, 0, 1, 10.0))
sketch1.addConstraint(Sketcher.Constraint("DistanceX", 4, 1, 4, 2, 50.0))
sketch1.addConstraint(Sketcher.Constraint("DistanceY", 1, 1, 1, 2, 70.0))
sketch1.addConstraint(Sketcher.Constraint("DistanceY", 3, 1, 3, 2, 30.0))
sketch1.addConstraint(Sketcher.Constraint("DistanceX", -1, 1, 12, 3, 21.0))
sketch1.addConstraint(Sketcher.Constraint("DistanceX", -1, 1, 20, 2, 12.0))
sketch1.addConstraint(Sketcher.Constraint("DistanceX", -1, 1, 16, 3, 15.75))
sketch1.addConstraint(Sketcher.Constraint("DistanceX", -1, 1, 24, 3, 5.25))
sketch1.addConstraint(Sketcher.Constraint("DistanceY", 13, 1, 13, 2, 22.305517))
sketch1.addConstraint(Sketcher.Constraint("DistanceY", -1, 1, 12, 3, 38.847242))
pad1 = doc.addObject("PartDesign::Pad", "Pad")
body.addObject(pad1)
pad1.Profile = sketch1
pad1.Length = 2
pad1.Reversed = True

# Sketch on XZ plane
sketch2 = doc.addObject("Sketcher::SketchObject", "Sketch001")
body.addObject(sketch2)
sketch2.AttachmentSupport = (doc.XZ_Plane, [""])
sketch2.MapMode = "FlatFace"
add_polygon(sketch2, [(25, 35), (35, 25), (35, 35)])  # lines 0-2
add_polygon(sketch2, [(28, 22), (22, 28), (5, 28), (5, 5), (28, 5)])  # lines 3-7
sketch2.addConstraint(Sketcher.Constraint("Vertical", 1))
sketch2.addConstraint(Sketcher.Constraint("Horizontal", 2))
sketch2.addConstraint(Sketcher.Constraint("Horizontal", 4))
sketch2.addConstraint(Sketcher.Constraint("Vertical", 5))
sketch2.addConstraint(Sketcher.Constraint("Horizontal", 6))
sketch2.addConstraint(Sketcher.Constraint("Vertical", 7))
sketch2.addConstraint(Sketcher.Constraint("Parallel", 0, 3))
sketch2.addConstraint(Sketcher.Constraint("Equal", 2, 1))
sketch2.addConstraint(Sketcher.Constraint("Equal", 6, 5))
sketch2.addConstraint(Sketcher.Constraint("DistanceX", 2, 2, 2, 1, 10.0))
sketch2.addConstraint(Sketcher.Constraint("DistanceX", 6, 1, 6, 2, 22.5))
sketch2.addConstraint(Sketcher.Constraint("DistanceX", -1, 1, 0, 2, 35.0))
sketch2.addConstraint(Sketcher.Constraint("DistanceY", -1, 1, 0, 2, 25.0))
sketch2.addConstraint(Sketcher.Constraint("DistanceX", -1, 1, 4, 2, 5.0))
sketch2.addConstraint(Sketcher.Constraint("DistanceY", -1, 1, 5, 2, 5.0))
sketch2.addConstraint(Sketcher.Constraint("DistanceX", 4, 2, 4, 1, 16.893398))
pocket1 = doc.addObject("PartDesign::Pocket", "Pocket")
body.addObject(pocket1)
pocket1.Profile = sketch2
pocket1.Length = 2
doc.recompute()

polarpattern = doc.addObject("PartDesign::PolarPattern", "PolarPattern")
body.addObject(polarpattern)
polarpattern.Originals = [pocket1]
polarpattern.Axis = (doc.Y_Axis, [""])
polarpattern.Angle = 360
polarpattern.Occurrences = 4
body.Tip = polarpattern

doc.recompute()
